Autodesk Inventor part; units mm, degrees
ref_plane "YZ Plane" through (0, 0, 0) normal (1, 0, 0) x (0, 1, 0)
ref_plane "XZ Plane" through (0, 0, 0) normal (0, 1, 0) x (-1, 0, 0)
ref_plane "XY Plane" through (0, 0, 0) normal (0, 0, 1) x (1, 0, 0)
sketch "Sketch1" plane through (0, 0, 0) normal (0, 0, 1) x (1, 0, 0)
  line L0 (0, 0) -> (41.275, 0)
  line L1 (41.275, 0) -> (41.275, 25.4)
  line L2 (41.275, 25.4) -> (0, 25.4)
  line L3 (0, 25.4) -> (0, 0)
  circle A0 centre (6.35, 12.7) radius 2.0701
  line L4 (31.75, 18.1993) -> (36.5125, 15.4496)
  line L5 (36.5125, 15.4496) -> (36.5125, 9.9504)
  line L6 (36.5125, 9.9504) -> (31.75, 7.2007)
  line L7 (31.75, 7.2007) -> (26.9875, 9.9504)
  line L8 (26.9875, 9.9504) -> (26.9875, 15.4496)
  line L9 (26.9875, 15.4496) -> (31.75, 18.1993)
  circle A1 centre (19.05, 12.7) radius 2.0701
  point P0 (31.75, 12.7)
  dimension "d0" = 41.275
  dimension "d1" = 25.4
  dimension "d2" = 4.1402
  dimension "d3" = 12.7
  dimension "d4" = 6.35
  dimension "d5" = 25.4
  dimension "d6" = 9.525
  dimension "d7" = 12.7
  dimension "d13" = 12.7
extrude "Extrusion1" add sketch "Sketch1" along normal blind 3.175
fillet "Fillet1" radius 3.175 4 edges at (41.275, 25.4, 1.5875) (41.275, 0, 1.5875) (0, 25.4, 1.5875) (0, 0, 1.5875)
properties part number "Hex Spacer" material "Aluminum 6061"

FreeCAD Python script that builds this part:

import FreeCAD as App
import Part
import Sketcher
from FreeCAD import Vector
Q = App.Units.Quantity


def edges_at(feature, points):
    """Names of the edges that pass closest to the given points."""
    edges = feature.Shape.Edges
    near = lambda p: min(range(len(edges)), key=lambda i: edges[i].distToShape(Part.Vertex(*p))[0])
    return sorted({f"Edge{near(p) + 1}" for p in points})

doc = App.newDocument("Part")
body = doc.addObject("PartDesign::Body", "Body")

# Sketch on XY plane
sketch1 = body.newObject("Sketcher::SketchObject", "Sketch")
sketch1.AttachmentSupport = (doc.getObject("XY_Plane"), [""])
sketch1.MapMode = "FlatFace"
sketch1.addGeometry(Part.LineSegment(Vector(0, 25.4, 0), Vector(0, 0, 0)), False)
sketch1.addGeometry(Part.LineSegment(Vector(0, 0, 0), Vector(41.3, 0, 0)), False)
sketch1.addGeometry(Part.LineSegment(Vector(41.3, 0, 0), Vector(41.3, 25.4, 0)), False)
sketch1.addGeometry(Part.LineSegment(Vector(41.3, 25.4, 0), Vector(0, 25.4, 0)), False)
sketch1.addGeometry(Part.Circle(Vector(6.3, 12.7, 0), Vector(0, 0, 1), 2.1), False)
sketch1.addGeometry(Part.Circle(Vector(19.1, 12.7, 0), Vector(0, 0, 1), 2.1), False)
sketch1.addGeometry(Part.LineSegment(Vector(27, 15.4, 0), Vector(31.8, 18.2, 0)), False)
sketch1.addGeometry(Part.LineSegment(Vector(31.8, 18.2, 0), Vector(36.5, 15.4, 0)), False)
sketch1.addGeometry(Part.LineSegment(Vector(36.5, 15.4, 0), Vector(36.5, 10, 0)), False)
sketch1.addGeometry(Part.LineSegment(Vector(36.5, 10, 0), Vector(31.8, 7.2, 0)), False)
sketch1.addGeometry(Part.LineSegment(Vector(31.8, 7.2, 0), Vector(27, 10, 0)), False)
sketch1.addGeometry(Part.LineSegment(Vector(27, 10, 0), Vector(27, 15.4, 0)), False)
sketch1.addConstraint(Sketcher.Constraint("Coincident", 0, 2, 1, 1))
sketch1.addConstraint(Sketcher.Constraint("Coincident", 1, 2, 2, 1))
sketch1.addConstraint(Sketcher.Constraint("Coincident", 2, 2, 3, 1))
sketch1.addConstraint(Sketcher.Constraint("Coincident", 3, 2, 0, 1))
sketch1.addConstraint(Sketcher.Constraint("Coincident", 6, 2, 7, 1))
sketch1.addConstraint(Sketcher.Constraint("Coincident", 7, 2, 8, 1))
sketch1.addConstraint(Sketcher.Constraint("Coincident", 8, 2, 9, 1))
sketch1.addConstraint(Sketcher.Constraint("Coincident", 9, 2, 10, 1))
sketch1.addConstraint(Sketcher.Constraint("Coincident", 10, 2, 11, 1))
sketch1.addConstraint(Sketcher.Constraint("Coincident", 11, 2, 6, 1))
sketch1.addConstraint(Sketcher.Constraint("Vertical", 0))
sketch1.addConstraint(Sketcher.Constraint("Horizontal", 1))
sketch1.addConstraint(Sketcher.Constraint("Vertical", 2))
sketch1.addConstraint(Sketcher.Constraint("Horizontal", 3))
sketch1.addConstraint(Sketcher.Constraint("Vertical", 8))
sketch1.addConstraint(Sketcher.Constraint("Vertical", 11))
sketch1.addConstraint(Sketcher.Constraint("Coincident", 0, 2, -1, 1))
sketch1.addConstraint(Sketcher.Constraint("Equal", 4, 5))
sketch1.addConstraint(Sketcher.Constraint("Parallel", 6, 9))
sketch1.addConstraint(Sketcher.Constraint("Parallel", 7, 10))
sketch1.addConstraint(Sketcher.Constraint("Horizontal", 4, 3, 5, 3))
sketch1.addConstraint(Sketcher.Constraint("Horizontal", 8, 2, 10, 2))
sketch1.addConstraint(Sketcher.Constraint("Horizontal", 7, 2, 11, 2))
sketch1.addConstraint(Sketcher.Constraint("Vertical", 6, 2, 9, 2))
sketch1.addConstraint(Sketcher.Constraint("DistanceY", 0, 2, 0, 1, Q("1 in")))
sketch1.addConstraint(Sketcher.Constraint("Diameter", 4, Q("0.163 in")))
sketch1.addConstraint(Sketcher.Constraint("DistanceX", 4, 3, 6, 2, Q("1 in")))
sketch1.addConstraint(Sketcher.Constraint("DistanceY", -1, 1, 4, 3, Q("0.5 in")))
sketch1.addConstraint(Sketcher.Constraint("DistanceX", 4, 3, 5, 3, Q("0.5 in")))
sketch1.addConstraint(Sketcher.Constraint("DistanceX", 1, 1, 1, 2, Q("1.625 in")))
sketch1.addConstraint(Sketcher.Constraint("DistanceX", -1, 1, 4, 3, Q("0.25 in")))
sketch1.addConstraint(Sketcher.Constraint("Angle", 6, Q("30.0006 deg")))
sketch1.addConstraint(Sketcher.Constraint("DistanceX", 10, 2, 8, 2, Q("0.375 in")))
sketch1.addConstraint(Sketcher.Constraint("DistanceY", 8, 2, 8, 1, Q("0.2165 in")))
sketch1.addConstraint(Sketcher.Constraint("DistanceY", -1, 1, 6, 2, Q("0.7165 in")))
pad1 = body.newObject("PartDesign::Pad", "Pad")
pad1.Profile = sketch1
pad1.Length = Q("0.125 in")
doc.recompute()

fillet = body.newObject("PartDesign::Fillet", "Fillet")
fillet.Base = (pad1, edges_at(pad1, [
    (41.275, 25.4, 1.587),
    (41.275, 0, 1.587),
    (0, 25.4, 1.587),
    (0, 0, 1.587),
]))
fillet.Radius = Q("0.125 in")

doc.recompute()
